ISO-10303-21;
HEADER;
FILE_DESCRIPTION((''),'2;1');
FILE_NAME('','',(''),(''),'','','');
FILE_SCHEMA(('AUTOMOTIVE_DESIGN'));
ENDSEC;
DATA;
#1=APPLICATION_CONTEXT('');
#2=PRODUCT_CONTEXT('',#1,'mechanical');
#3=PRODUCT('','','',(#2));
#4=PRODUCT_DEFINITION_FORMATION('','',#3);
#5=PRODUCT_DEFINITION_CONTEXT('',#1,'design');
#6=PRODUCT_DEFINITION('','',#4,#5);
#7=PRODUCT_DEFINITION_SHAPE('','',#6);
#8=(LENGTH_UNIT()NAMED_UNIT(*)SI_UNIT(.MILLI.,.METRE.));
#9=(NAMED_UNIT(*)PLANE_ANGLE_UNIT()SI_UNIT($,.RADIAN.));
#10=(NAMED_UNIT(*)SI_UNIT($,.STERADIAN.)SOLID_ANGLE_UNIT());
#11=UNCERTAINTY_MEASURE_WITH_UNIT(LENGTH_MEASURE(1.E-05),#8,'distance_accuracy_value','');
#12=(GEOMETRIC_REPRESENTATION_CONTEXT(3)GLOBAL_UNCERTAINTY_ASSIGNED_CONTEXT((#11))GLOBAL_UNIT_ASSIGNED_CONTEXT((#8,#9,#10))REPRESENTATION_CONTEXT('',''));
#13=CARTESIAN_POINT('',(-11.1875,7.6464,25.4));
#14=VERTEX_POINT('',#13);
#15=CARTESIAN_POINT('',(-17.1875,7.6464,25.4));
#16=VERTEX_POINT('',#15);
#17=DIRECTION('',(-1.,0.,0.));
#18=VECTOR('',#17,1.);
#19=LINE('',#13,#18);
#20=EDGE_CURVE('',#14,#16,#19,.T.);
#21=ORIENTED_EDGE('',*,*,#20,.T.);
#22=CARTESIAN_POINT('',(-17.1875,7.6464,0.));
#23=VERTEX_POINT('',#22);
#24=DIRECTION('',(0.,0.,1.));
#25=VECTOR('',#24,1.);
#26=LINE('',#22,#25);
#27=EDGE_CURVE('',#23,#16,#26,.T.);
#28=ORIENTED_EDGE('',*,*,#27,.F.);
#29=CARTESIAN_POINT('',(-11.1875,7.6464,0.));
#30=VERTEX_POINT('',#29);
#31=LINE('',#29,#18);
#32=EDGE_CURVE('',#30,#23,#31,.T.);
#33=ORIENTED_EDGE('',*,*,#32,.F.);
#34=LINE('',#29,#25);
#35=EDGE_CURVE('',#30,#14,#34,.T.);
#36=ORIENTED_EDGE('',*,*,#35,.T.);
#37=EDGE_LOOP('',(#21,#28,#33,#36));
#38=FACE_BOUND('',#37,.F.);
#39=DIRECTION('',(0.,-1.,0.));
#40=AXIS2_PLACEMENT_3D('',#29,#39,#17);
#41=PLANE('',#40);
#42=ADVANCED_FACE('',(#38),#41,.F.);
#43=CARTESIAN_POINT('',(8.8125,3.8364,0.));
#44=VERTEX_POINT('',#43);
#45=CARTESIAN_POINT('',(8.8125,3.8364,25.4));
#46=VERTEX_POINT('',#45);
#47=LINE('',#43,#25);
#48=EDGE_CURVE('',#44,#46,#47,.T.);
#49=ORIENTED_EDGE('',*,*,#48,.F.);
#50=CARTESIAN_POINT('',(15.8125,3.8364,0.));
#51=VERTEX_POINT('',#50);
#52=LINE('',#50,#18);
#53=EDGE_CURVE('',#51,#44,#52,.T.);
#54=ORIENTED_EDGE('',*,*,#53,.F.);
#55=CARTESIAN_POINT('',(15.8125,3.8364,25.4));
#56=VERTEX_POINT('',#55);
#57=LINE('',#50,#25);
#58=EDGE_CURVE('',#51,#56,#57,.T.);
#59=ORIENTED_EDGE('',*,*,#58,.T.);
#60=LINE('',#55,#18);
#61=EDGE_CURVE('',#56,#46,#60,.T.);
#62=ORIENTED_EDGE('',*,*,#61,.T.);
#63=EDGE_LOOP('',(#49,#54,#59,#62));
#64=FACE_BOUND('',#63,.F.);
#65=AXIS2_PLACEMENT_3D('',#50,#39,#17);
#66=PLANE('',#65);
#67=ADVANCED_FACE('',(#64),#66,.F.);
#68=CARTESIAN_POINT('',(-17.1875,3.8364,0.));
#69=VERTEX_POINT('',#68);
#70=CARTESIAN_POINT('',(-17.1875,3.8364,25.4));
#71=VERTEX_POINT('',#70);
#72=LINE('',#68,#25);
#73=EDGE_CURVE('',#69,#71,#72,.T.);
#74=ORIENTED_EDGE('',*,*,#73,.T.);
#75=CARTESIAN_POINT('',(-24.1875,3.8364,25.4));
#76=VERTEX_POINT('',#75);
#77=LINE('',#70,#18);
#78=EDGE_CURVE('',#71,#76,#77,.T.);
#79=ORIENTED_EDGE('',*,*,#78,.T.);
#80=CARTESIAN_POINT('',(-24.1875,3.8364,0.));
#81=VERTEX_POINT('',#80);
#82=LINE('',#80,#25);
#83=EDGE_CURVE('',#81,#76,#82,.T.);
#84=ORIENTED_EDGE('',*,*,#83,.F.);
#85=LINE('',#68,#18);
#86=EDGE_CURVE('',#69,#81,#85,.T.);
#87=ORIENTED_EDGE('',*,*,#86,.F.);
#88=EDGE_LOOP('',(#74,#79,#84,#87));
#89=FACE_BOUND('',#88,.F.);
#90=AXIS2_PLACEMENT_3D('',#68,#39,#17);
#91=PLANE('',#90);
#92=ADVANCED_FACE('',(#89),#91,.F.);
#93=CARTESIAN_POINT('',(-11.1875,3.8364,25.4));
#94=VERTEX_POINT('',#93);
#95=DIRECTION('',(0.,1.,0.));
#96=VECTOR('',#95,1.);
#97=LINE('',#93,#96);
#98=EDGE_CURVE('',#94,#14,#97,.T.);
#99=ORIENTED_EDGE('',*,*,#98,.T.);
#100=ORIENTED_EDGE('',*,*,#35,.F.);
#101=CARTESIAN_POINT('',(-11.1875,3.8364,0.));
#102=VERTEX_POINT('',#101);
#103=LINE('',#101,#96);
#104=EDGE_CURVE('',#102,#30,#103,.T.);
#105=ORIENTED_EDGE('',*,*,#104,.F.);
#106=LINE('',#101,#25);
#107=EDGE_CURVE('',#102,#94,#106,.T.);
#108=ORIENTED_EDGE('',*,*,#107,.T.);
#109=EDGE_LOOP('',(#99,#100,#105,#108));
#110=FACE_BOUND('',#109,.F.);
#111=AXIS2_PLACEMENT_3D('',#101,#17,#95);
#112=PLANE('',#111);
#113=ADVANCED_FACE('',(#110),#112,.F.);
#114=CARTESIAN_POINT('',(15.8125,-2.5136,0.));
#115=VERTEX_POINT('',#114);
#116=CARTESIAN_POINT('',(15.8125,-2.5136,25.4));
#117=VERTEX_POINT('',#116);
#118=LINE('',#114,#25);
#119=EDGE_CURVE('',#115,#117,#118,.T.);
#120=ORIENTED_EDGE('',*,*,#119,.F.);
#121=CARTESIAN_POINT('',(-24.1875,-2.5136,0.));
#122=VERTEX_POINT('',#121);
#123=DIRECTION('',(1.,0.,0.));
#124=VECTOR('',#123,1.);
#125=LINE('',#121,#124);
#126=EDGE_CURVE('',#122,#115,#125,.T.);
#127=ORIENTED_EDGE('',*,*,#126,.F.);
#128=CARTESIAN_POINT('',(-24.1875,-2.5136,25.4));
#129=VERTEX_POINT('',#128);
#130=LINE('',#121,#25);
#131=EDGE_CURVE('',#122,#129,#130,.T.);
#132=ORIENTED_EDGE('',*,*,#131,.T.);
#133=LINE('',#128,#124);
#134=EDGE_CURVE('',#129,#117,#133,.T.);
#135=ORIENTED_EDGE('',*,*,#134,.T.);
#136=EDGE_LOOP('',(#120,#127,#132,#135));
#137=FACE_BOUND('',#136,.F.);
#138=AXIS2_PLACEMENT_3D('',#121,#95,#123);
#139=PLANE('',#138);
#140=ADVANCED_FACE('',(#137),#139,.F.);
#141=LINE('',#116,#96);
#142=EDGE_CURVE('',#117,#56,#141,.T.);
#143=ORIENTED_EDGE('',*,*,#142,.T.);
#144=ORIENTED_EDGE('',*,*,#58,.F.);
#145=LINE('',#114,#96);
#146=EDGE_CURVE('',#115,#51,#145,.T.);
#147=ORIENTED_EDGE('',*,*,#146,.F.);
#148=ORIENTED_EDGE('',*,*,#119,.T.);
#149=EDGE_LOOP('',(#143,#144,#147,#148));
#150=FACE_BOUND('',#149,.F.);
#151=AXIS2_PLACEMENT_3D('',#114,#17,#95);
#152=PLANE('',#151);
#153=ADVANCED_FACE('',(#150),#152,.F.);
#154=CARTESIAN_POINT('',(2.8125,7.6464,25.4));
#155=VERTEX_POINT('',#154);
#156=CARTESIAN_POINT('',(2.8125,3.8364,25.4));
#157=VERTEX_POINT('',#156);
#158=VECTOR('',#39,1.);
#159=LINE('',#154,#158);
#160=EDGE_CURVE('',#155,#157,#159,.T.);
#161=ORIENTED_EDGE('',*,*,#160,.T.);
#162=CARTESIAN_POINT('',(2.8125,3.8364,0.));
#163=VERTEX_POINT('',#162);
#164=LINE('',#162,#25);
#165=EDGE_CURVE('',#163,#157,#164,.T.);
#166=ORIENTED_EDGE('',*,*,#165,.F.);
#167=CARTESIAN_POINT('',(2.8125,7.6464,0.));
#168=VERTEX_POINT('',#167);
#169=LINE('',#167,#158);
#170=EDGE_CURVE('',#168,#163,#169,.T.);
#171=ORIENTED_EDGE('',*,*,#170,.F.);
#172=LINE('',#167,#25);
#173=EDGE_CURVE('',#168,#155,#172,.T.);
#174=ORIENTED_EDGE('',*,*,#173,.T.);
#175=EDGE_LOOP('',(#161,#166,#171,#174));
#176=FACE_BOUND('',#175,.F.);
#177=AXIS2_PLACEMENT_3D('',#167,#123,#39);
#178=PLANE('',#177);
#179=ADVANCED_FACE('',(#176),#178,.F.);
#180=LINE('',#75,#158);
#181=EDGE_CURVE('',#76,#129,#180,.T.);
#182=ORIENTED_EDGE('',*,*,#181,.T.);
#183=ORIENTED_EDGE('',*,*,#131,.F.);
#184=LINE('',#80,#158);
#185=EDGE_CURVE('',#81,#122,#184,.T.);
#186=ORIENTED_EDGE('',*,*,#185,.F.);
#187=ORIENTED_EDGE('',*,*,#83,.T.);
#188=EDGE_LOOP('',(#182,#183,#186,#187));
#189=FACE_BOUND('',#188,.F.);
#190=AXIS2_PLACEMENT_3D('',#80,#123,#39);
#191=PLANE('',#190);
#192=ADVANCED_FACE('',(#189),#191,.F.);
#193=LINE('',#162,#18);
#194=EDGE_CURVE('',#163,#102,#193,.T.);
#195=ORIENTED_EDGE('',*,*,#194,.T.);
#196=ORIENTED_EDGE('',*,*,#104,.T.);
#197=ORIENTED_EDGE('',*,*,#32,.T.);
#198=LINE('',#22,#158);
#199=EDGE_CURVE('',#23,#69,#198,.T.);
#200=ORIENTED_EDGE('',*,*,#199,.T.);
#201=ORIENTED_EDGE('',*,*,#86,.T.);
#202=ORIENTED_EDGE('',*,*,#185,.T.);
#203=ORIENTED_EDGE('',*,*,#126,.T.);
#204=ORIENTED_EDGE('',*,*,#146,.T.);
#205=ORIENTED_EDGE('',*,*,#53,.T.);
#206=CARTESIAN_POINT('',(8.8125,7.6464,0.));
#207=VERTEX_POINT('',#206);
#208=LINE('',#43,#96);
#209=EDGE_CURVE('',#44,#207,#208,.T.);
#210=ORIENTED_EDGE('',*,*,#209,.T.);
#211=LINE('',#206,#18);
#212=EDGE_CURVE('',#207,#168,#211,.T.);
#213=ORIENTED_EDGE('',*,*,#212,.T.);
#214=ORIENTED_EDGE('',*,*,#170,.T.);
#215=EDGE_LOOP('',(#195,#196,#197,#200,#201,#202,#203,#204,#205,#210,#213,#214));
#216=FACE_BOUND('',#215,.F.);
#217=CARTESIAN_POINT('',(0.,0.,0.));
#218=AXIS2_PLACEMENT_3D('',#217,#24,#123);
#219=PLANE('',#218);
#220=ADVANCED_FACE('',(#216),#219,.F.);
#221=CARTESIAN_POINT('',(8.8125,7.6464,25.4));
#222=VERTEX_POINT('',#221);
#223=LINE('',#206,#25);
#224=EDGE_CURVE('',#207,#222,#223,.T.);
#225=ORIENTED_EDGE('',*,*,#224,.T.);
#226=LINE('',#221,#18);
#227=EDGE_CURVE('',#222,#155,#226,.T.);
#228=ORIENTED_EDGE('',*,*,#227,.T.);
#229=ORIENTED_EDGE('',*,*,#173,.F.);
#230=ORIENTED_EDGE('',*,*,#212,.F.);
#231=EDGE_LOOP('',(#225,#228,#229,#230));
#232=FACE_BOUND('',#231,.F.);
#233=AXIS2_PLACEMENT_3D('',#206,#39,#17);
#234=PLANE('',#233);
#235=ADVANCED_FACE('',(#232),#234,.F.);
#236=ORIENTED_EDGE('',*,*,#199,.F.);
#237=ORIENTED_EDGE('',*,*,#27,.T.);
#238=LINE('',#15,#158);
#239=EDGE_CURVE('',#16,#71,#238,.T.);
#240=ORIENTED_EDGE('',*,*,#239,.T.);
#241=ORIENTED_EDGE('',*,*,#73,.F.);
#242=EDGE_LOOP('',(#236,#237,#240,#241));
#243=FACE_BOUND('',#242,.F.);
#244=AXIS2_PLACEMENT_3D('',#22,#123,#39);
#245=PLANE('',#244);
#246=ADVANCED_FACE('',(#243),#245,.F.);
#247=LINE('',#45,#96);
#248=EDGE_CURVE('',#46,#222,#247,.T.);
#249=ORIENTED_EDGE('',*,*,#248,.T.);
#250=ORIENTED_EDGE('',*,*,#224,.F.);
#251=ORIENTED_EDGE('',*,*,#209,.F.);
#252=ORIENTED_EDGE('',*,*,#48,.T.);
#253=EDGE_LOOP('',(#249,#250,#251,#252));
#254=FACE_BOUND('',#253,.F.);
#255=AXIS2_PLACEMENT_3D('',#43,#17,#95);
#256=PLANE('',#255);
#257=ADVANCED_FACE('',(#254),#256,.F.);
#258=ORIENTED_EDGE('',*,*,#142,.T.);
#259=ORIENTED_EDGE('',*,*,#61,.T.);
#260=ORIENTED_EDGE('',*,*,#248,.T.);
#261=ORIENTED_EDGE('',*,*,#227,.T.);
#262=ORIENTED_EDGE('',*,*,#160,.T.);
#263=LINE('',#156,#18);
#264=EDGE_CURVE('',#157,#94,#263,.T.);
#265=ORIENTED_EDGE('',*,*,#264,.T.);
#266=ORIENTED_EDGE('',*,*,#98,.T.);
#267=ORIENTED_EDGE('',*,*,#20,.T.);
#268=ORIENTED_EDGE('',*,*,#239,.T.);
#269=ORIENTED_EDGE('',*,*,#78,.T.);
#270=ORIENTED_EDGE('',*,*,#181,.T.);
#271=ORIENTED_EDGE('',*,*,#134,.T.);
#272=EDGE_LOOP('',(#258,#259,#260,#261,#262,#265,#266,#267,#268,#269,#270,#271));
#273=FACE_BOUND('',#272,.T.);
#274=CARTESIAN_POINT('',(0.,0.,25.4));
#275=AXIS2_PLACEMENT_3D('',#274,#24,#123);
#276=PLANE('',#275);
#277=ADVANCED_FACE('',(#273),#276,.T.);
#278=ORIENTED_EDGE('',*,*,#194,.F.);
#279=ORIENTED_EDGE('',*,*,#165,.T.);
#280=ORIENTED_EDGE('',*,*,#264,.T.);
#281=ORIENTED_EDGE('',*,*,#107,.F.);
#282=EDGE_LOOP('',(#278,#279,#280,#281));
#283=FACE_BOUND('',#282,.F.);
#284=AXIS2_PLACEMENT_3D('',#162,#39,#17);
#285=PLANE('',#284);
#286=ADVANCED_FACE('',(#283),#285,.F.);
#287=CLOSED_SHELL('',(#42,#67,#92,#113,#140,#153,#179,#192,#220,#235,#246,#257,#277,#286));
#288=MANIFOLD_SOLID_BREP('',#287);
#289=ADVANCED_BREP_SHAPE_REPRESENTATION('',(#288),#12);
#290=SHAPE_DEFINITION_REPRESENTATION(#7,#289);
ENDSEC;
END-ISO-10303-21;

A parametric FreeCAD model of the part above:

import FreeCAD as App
import Part
import Sketcher
Q = App.Units.Quantity


def add_polygon(sketch, points):
    """Adds a closed chain of lines whose ends are joined by coincident constraints."""
    first, n = sketch.GeometryCount, len(points)
    for a, b in zip(points, points[1:] + points[:1]):
        sketch.addGeometry(Part.LineSegment(App.Vector(*a, 0), App.Vector(*b, 0)), False)
    for i in range(n):
        sketch.addConstraint(Sketcher.Constraint("Coincident", first + i, 2, first + (i + 1) % n, 1))

doc = App.newDocument("Part")
body = doc.addObject("PartDesign::Body", "Body")

sketch1 = body.newObject("Sketcher::SketchObject", "Sketch")
sketch1.AttachmentSupport = (doc.getObject("XY_Plane"), [""])
sketch1.MapMode = "FlatFace"
add_polygon(sketch1, [(-24.2, 3.8), (-24.2, -2.5), (15.8, -2.5), (15.8, 3.8), (8.8, 3.8), (8.8, 7.6), (2.8, 7.6), (2.8, 3.8), (-11.2, 3.8), (-11.2, 7.6), (-17.2, 7.6), (-17.2, 3.8)])
sketch1.addConstraint([
    Sketcher.Constraint("Vertical", 0),
    Sketcher.Constraint("Horizontal", 1),
    Sketcher.Constraint("Vertical", 2),
    Sketcher.Constraint("Horizontal", 3),
    Sketcher.Constraint("Vertical", 4),
    Sketcher.Constraint("Horizontal", 5),
    Sketcher.Constraint("Vertical", 6),
    Sketcher.Constraint("Horizontal", 7),
    Sketcher.Constraint("Vertical", 8),
    Sketcher.Constraint("Horizontal", 9),
    Sketcher.Constraint("Vertical", 10),
    Sketcher.Constraint("Horizontal", 11),
    Sketcher.Constraint("Horizontal", 3, 2, 6, 2),
    Sketcher.Constraint("Horizontal", 5, 2, 8, 2),
    Sketcher.Constraint("Horizontal", 7, 2, 10, 2),
    Sketcher.Constraint("Equal", 5, 9),
    Sketcher.Constraint("Equal", 3, 11),
    Sketcher.Constraint("DistanceY", 0, 2, 0, 1, Q("0.25 in")),
    Sketcher.Constraint("DistanceY", 4, 1, 4, 2, Q("0.15 in")),
    Sketcher.Constraint("DistanceX", 1, 1, 1, 2, Q("1.5748 in")),
    Sketcher.Constraint("DistanceX", 3, 2, 3, 1, Q("0.2756 in")),
    Sketcher.Constraint("DistanceX", 5, 2, 5, 1, 6.0),
    Sketcher.Constraint("DistanceX", 0, 2, -1, 1, 24.1875),
    Sketcher.Constraint("DistanceY", 0, 2, -1, 1, 2.5136),
])
pad1 = body.newObject("PartDesign::Pad", "Pad")
pad1.Profile = sketch1
pad1.Length = Q("1 in")

doc.recompute()
